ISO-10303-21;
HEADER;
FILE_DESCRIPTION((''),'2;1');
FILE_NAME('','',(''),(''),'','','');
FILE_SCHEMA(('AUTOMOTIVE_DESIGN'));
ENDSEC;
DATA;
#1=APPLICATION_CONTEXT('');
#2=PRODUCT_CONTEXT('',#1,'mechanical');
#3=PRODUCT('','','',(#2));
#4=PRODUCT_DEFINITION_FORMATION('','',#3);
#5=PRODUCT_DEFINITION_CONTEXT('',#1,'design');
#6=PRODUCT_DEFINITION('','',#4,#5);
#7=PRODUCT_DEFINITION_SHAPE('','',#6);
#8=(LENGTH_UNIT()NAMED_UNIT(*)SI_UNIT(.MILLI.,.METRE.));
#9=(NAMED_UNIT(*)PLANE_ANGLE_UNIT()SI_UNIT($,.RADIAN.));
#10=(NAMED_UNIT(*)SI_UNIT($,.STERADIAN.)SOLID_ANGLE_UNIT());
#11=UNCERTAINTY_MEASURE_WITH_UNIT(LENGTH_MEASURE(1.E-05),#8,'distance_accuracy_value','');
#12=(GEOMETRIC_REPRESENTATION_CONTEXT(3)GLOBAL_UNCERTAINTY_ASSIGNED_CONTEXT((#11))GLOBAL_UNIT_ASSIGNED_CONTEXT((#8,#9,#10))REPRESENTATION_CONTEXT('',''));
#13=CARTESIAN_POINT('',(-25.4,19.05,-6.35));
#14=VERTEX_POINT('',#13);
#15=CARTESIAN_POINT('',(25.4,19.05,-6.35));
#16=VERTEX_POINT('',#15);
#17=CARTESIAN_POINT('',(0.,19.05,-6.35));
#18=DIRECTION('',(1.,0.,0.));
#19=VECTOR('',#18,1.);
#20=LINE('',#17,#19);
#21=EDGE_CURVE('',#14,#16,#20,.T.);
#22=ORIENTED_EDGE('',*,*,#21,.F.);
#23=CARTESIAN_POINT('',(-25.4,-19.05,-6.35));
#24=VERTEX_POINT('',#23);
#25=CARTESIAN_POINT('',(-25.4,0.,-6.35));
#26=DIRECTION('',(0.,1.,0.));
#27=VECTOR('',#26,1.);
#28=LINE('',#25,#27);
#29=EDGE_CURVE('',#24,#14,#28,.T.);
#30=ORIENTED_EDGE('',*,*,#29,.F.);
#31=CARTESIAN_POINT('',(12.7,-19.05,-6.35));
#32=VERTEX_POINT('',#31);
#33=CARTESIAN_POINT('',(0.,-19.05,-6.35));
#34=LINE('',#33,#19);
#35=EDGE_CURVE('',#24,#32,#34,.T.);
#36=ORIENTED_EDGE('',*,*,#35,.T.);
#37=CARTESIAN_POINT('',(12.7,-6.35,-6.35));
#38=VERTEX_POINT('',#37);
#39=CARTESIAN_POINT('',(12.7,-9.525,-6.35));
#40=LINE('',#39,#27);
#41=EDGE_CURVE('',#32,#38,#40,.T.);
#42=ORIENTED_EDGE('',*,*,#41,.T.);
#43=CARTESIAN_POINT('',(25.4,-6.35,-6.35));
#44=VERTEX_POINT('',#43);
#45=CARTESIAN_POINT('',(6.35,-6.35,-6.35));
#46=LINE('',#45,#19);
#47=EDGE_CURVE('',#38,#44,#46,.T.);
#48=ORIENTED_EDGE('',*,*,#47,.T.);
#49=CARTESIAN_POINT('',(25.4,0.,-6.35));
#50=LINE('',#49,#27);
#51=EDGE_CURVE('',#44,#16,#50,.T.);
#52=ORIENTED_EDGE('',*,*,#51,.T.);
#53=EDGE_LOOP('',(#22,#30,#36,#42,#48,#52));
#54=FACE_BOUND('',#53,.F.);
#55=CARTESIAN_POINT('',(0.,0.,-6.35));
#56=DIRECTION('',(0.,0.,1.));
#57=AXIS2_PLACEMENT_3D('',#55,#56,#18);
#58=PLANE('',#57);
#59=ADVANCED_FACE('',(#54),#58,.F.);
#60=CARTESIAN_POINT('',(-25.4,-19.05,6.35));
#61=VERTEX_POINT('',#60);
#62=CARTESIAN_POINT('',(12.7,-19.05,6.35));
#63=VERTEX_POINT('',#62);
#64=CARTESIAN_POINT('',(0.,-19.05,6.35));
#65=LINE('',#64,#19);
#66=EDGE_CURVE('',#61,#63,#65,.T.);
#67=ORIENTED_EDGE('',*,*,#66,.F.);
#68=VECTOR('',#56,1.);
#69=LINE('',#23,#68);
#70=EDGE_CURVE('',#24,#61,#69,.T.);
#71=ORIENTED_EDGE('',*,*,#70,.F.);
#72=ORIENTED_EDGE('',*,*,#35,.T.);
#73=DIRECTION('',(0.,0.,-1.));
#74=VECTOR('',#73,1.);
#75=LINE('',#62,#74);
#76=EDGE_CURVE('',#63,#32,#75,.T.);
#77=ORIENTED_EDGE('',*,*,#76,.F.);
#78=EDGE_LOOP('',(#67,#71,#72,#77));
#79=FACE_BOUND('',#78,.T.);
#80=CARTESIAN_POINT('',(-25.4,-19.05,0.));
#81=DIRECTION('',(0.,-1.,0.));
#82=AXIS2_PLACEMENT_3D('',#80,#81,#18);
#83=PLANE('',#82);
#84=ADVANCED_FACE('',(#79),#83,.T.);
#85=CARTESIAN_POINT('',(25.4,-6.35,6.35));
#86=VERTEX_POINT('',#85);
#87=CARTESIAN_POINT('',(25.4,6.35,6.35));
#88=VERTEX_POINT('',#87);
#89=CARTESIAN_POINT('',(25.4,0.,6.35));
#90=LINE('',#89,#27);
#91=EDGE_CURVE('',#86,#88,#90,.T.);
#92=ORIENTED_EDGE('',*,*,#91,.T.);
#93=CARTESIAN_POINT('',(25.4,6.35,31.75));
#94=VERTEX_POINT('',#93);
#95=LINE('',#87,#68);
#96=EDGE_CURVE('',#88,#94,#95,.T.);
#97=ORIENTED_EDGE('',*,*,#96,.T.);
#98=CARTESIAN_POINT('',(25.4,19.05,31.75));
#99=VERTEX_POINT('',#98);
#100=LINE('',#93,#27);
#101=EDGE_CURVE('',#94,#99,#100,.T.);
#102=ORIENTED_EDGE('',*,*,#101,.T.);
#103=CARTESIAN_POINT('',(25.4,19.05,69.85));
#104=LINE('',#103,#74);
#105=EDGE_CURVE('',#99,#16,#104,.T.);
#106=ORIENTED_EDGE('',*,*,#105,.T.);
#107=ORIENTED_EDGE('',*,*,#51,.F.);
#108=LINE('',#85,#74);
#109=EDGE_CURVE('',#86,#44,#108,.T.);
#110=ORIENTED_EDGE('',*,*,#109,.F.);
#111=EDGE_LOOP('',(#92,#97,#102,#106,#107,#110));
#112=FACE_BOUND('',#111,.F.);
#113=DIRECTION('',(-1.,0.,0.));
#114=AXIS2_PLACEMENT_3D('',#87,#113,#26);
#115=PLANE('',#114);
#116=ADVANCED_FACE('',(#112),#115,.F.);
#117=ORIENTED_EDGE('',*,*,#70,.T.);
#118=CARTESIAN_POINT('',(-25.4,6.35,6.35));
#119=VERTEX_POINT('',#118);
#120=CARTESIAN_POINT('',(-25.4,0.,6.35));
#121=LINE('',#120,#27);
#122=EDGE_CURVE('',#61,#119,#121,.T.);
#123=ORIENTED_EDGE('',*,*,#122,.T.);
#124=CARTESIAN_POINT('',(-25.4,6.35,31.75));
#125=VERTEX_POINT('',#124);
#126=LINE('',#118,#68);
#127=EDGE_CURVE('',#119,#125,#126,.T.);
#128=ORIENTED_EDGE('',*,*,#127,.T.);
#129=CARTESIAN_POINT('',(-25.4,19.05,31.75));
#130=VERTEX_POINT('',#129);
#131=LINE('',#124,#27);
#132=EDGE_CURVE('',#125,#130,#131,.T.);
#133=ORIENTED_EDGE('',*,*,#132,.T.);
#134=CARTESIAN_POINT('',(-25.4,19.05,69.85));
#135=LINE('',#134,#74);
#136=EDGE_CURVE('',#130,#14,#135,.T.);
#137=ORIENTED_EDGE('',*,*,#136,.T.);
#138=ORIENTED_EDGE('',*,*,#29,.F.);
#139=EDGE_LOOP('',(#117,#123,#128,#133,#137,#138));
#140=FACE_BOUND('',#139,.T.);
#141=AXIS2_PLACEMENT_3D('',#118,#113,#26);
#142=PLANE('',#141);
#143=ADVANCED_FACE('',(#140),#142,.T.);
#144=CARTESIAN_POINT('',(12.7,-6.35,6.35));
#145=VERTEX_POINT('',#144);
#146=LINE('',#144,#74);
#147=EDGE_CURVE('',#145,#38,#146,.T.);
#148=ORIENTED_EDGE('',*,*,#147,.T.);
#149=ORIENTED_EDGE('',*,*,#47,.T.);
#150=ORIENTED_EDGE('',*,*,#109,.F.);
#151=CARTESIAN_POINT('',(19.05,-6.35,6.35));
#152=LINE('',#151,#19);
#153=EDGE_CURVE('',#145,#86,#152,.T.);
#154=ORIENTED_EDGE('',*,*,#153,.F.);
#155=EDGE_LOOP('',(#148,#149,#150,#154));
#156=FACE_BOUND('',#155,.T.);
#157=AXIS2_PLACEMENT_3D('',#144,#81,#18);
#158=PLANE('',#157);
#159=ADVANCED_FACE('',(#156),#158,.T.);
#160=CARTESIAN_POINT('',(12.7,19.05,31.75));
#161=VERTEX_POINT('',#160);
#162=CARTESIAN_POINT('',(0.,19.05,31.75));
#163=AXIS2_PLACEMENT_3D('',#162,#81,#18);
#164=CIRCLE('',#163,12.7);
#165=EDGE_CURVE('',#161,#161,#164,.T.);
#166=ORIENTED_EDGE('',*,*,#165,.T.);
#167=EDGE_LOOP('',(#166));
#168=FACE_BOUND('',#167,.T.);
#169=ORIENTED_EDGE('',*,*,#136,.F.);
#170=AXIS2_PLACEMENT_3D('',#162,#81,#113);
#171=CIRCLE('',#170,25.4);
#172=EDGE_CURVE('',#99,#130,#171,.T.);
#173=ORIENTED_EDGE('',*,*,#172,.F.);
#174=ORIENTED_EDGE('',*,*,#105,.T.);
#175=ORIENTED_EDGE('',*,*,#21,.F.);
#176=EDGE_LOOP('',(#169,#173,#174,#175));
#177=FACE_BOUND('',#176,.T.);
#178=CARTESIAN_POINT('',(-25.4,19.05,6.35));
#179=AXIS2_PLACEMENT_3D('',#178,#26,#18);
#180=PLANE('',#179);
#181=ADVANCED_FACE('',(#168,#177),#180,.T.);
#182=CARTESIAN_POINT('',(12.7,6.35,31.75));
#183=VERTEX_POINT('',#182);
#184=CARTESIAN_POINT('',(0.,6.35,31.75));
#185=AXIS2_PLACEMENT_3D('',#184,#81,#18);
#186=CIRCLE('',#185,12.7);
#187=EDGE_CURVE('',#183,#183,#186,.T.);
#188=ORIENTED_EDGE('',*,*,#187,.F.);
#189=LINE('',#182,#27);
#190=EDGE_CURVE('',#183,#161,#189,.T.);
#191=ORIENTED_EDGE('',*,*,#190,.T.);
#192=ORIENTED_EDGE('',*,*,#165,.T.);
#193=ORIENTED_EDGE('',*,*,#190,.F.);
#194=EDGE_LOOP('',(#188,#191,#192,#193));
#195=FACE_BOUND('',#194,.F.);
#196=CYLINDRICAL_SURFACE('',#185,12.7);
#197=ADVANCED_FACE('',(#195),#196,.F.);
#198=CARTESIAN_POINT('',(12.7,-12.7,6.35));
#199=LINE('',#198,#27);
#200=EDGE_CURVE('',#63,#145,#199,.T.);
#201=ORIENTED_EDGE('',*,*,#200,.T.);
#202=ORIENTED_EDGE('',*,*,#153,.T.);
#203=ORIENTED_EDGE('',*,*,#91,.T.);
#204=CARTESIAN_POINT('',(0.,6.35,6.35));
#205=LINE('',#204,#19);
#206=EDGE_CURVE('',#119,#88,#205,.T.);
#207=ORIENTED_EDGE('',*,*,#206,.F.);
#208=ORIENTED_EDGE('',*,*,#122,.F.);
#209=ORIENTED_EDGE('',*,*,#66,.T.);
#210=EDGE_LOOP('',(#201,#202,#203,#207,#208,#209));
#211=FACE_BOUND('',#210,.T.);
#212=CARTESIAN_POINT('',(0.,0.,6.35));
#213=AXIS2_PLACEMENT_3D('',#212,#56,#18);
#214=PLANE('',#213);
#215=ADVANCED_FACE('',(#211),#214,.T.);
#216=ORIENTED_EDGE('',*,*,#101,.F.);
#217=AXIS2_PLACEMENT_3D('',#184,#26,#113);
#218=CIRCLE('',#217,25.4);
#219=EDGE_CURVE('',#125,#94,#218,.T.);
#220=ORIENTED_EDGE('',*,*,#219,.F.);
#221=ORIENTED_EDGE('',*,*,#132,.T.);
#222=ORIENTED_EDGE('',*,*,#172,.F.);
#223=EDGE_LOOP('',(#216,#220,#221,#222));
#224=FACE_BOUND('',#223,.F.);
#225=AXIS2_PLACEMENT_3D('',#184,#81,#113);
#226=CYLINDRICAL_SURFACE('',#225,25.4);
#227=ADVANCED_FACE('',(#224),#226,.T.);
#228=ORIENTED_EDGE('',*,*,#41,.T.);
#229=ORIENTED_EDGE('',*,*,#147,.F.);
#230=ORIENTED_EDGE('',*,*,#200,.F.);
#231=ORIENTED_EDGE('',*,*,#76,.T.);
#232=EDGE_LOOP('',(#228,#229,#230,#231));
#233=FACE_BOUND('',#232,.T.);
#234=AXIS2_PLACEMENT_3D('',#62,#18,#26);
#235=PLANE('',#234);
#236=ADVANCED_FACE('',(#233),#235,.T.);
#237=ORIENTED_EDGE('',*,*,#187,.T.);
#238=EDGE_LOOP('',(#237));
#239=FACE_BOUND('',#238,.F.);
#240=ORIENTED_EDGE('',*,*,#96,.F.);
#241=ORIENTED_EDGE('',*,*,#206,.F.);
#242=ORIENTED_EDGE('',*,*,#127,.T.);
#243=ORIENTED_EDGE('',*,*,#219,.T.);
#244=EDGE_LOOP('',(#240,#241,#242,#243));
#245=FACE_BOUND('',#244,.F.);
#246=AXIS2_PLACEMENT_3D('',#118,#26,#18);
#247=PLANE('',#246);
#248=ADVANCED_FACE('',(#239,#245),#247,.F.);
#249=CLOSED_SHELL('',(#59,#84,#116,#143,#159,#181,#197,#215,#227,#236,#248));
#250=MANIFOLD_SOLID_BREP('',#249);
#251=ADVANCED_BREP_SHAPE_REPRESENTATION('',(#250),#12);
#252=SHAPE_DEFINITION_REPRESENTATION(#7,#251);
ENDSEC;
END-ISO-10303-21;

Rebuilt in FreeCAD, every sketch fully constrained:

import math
import FreeCAD as App
import Part
import Sketcher
Q = App.Units.Quantity


def add_polygon(sketch, points):
    """Adds a closed chain of lines whose ends are joined by coincident constraints."""
    first, n = sketch.GeometryCount, len(points)
    for a, b in zip(points, points[1:] + points[:1]):
        sketch.addGeometry(Part.LineSegment(App.Vector(*a, 0), App.Vector(*b, 0)), False)
    for i in range(n):
        sketch.addConstraint(Sketcher.Constraint("Coincident", first + i, 2, first + (i + 1) % n, 1))

doc = App.newDocument("Part")
body = doc.addObject("PartDesign::Body", "Body")

sketch1 = doc.addObject("Sketcher::SketchObject", "Sketch")
body.addObject(sketch1)
sketch1.AttachmentSupport = (doc.XY_Plane, [""])
sketch1.MapMode = "FlatFace"
add_polygon(sketch1, [(-25.4, 19.05), (-25.4, -19.05), (25.4, -19.05), (25.4, 19.05)])
sketch1.addConstraint([
    Sketcher.Constraint("Vertical", 0),
    Sketcher.Constraint("Horizontal", 1),
    Sketcher.Constraint("Vertical", 2),
    Sketcher.Constraint("Horizontal", 3),
    Sketcher.Constraint("Symmetric", 0, 2, 2, 2, -1, 1),
    Sketcher.Constraint("DistanceX", 1, 1, 1, 2, Q("2 in")),
    Sketcher.Constraint("DistanceY", 0, 2, 0, 1, Q("1.5 in")),
])
pad1 = doc.addObject("PartDesign::Pad", "Pad")
body.addObject(pad1)
pad1.Profile = sketch1
pad1.Length = Q("0.5 in")
pad1.Midplane = True

sketch2 = doc.addObject("Sketcher::SketchObject", "Sketch001")
body.addObject(sketch2)
sketch2.AttachmentSupport = (doc.XY_Plane, [""])
sketch2.MapMode = "FlatFace"
sketch2.AttachmentOffset = App.Placement(App.Vector(0, 0, 0.25 * 25.4), App.Rotation())
add_polygon(sketch2, [(-25.4, 19.05), (-25.4, 6.35), (25.4, 6.35), (25.4, 19.05)])
sketch2.addConstraint([
    Sketcher.Constraint("Vertical", 0),
    Sketcher.Constraint("Horizontal", 1),
    Sketcher.Constraint("Vertical", 2),
    Sketcher.Constraint("Horizontal", 3),
    Sketcher.Constraint("DistanceX", 1, 1, 1, 2, Q("2 in")),
    Sketcher.Constraint("DistanceY", 0, 2, 0, 1, Q("0.5 in")),
    Sketcher.Constraint("DistanceX", 0, 2, -1, 1, Q("1 in")),
    Sketcher.Constraint("DistanceY", -1, 1, 0, 2, Q("0.25 in")),
])
pad2 = doc.addObject("PartDesign::Pad", "Pad001")
body.addObject(pad2)
pad2.Profile = sketch2
pad2.Length = Q("2.5 in")

sketch3 = doc.addObject("Sketcher::SketchObject", "Sketch002")
body.addObject(sketch3)
sketch3.AttachmentSupport = (doc.XZ_Plane, [""])
sketch3.MapMode = "FlatFace"
sketch3.AttachmentOffset = App.Placement(App.Vector(0, 0, -0.25 * 25.4), App.Rotation())
sketch3.addGeometry(Part.Circle(App.Vector(0, 31.75, 0), App.Vector(0, 0, 1), 12.7), False)
sketch3.addConstraint([
    Sketcher.Constraint("PointOnObject", 0, 3, -2),
    Sketcher.Constraint("Diameter", 0, Q("1 in")),
    Sketcher.Constraint("DistanceY", -1, 1, 0, 3, Q("1.25 in")),
])
pocket1 = doc.addObject("PartDesign::Pocket", "Pocket")
body.addObject(pocket1)
pocket1.Profile = sketch3
pocket1.Length = Q("1 in")

sketch4 = doc.addObject("Sketcher::SketchObject", "Sketch003")
body.addObject(sketch4)
sketch4.AttachmentSupport = (doc.XZ_Plane, [""])
sketch4.MapMode = "FlatFace"
sketch4.AttachmentOffset = App.Placement(App.Vector(0, 0, -0.25 * 25.4), App.Rotation())
sketch4.addGeometry([
    Part.ArcOfCircle(Part.Circle(App.Vector(0, 31.75, 0), App.Vector(0, 0, 1), 25.4), math.radians(0), math.radians(180)),
    Part.LineSegment(App.Vector(25.4, 31.75, 0), App.Vector(25.4, 69.85, 0)),
    Part.LineSegment(App.Vector(25.4, 69.85, 0), App.Vector(-25.4, 69.85, 0)),
    Part.LineSegment(App.Vector(-25.4, 69.85, 0), App.Vector(-25.4, 31.75, 0)),
], False)
sketch4.addConstraint([
    Sketcher.Constraint("Tangent", 0, 1, 1, 1),
    Sketcher.Constraint("Coincident", 1, 2, 2, 1),
    Sketcher.Constraint("Coincident", 2, 2, 3, 1),
    Sketcher.Constraint("Tangent", 3, 2, 0, 2),
    Sketcher.Constraint("Vertical", 1),
    Sketcher.Constraint("Horizontal", 2),
    Sketcher.Constraint("Vertical", 3),
    Sketcher.Constraint("PointOnObject", 0, 3, -2),
    Sketcher.Constraint("Radius", 0, Q("1 in")),
    Sketcher.Constraint("DistanceY", 1, 1, 1, 2, Q("1.5 in")),
    Sketcher.Constraint("DistanceY", -1, 1, 0, 3, Q("1.25 in")),
])
pocket2 = doc.addObject("PartDesign::Pocket", "Pocket001")
body.addObject(pocket2)
pocket2.Profile = sketch4
pocket2.Length = Q("1 in")

sketch5 = doc.addObject("Sketcher::SketchObject", "Sketch004")
body.addObject(sketch5)
sketch5.AttachmentSupport = (doc.XY_Plane, [""])
sketch5.MapMode = "FlatFace"
sketch5.AttachmentOffset = App.Placement(App.Vector(0, 0, 0.25 * 25.4), App.Rotation())
add_polygon(sketch5, [(12.7, -6.35), (12.7, -19.05), (25.4, -19.05), (25.4, -6.35)])
sketch5.addConstraint([
    Sketcher.Constraint("Vertical", 0),
    Sketcher.Constraint("Horizontal", 1),
    Sketcher.Constraint("Vertical", 2),
    Sketcher.Constraint("Horizontal", 3),
    Sketcher.Constraint("Equal", 3, 0),
    Sketcher.Constraint("DistanceX", 1, 1, 1, 2, Q("0.5 in")),
    Sketcher.Constraint("DistanceX", -1, 1, 1, 2, Q("1 in")),
    Sketcher.Constraint("DistanceY", 0, 2, -1, 1, Q("0.75 in")),
])
pocket3 = doc.addObject("PartDesign::Pocket", "Pocket002")
body.addObject(pocket3)
pocket3.Profile = sketch5
pocket3.Length = Q("1 in")

doc.recompute()
